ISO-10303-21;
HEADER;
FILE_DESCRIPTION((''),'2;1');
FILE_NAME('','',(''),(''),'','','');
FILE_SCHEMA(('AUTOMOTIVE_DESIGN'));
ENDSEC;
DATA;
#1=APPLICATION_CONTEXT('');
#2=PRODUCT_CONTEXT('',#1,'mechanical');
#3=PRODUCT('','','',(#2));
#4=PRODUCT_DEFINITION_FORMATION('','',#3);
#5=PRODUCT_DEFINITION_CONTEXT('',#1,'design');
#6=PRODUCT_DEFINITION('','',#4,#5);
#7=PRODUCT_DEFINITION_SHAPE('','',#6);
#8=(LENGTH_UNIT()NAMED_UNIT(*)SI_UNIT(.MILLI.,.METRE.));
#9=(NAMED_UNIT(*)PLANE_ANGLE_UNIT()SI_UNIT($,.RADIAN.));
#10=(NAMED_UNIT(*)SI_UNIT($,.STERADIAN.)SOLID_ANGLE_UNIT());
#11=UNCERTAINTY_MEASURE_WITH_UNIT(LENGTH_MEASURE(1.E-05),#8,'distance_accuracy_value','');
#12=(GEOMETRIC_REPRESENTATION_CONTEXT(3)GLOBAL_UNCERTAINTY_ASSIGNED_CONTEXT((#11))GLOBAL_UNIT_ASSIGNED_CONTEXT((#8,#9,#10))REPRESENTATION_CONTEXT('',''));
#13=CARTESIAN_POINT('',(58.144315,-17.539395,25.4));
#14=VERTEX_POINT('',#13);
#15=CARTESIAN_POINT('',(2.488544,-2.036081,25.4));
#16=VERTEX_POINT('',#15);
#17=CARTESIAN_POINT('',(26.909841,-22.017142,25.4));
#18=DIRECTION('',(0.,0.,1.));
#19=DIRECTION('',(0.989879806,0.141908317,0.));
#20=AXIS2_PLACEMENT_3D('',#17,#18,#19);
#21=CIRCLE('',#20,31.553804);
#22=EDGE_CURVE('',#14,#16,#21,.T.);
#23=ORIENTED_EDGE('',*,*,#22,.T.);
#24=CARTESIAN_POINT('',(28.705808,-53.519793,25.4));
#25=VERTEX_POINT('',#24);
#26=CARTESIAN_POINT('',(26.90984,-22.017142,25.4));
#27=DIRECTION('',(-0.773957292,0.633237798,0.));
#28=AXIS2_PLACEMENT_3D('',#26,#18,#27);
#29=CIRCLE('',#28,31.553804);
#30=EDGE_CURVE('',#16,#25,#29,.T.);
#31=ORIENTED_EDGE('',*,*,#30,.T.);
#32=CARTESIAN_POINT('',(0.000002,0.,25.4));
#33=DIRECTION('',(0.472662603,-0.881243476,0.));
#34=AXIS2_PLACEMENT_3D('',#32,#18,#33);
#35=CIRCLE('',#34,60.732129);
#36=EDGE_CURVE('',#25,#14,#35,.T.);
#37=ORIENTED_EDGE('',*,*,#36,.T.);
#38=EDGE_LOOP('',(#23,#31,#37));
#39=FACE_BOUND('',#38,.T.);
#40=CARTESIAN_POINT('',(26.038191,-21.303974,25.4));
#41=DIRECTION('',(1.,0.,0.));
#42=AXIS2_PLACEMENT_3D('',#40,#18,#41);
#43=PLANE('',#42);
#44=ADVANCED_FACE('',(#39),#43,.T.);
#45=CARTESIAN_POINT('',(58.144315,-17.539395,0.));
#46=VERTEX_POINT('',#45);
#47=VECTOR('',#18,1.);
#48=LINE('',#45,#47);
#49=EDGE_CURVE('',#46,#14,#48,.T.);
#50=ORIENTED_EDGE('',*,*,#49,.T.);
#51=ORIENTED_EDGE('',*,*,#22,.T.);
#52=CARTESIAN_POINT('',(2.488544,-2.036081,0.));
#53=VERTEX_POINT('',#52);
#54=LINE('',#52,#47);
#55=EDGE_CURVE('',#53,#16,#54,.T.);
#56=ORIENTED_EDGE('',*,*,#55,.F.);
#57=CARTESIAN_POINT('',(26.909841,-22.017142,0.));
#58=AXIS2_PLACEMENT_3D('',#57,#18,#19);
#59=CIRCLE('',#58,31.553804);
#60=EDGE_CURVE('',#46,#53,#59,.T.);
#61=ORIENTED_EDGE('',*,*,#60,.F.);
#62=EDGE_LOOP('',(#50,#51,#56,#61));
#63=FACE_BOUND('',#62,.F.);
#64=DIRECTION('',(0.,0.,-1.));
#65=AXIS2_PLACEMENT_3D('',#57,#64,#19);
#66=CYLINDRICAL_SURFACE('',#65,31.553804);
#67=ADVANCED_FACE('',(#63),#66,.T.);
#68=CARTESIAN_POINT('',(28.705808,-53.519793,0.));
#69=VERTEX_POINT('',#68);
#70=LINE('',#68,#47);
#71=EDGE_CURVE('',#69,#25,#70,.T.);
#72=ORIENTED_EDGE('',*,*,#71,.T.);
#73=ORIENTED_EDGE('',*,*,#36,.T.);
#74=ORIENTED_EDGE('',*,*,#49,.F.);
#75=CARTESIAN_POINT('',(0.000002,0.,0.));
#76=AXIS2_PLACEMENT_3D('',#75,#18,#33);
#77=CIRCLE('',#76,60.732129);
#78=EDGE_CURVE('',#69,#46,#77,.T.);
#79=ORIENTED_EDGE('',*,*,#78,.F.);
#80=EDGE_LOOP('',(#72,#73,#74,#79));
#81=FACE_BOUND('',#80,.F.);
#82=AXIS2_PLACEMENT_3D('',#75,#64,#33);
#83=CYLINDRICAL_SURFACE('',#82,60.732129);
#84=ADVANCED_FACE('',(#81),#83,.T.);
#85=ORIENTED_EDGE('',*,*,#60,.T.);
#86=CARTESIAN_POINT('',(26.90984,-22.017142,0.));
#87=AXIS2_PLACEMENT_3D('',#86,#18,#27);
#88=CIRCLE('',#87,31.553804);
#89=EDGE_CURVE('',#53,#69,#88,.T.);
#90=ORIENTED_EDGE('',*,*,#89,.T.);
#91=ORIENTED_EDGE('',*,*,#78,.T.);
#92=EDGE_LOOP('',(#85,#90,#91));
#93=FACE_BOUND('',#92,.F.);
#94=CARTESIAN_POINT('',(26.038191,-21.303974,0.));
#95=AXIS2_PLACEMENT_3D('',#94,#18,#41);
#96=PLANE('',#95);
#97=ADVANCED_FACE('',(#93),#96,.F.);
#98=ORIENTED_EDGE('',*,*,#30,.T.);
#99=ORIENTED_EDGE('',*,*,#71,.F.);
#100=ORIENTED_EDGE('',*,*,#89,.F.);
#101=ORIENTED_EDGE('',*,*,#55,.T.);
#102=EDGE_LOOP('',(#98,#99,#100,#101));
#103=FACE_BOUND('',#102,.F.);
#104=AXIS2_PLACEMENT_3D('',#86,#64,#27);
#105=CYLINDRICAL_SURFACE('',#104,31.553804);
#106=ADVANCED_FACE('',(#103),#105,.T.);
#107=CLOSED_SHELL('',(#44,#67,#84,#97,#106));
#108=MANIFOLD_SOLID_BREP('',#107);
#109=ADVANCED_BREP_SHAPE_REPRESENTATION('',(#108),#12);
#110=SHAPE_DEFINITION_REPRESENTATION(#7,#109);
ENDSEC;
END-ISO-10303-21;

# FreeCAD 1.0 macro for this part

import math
import FreeCAD as App
import Part
import Sketcher

V = App.Vector
Q = App.Units.Quantity

doc = App.newDocument("Part")
body = doc.addObject("PartDesign::Body", "Body")

# Sketch on XY plane
sketch1 = body.newObject("Sketcher::SketchObject", "Sketch")
sketch1.AttachmentSupport = (doc.getObject("XY_Plane"), [""])
sketch1.MapMode = "FlatFace"
sketch1.addGeometry([
    Part.ArcOfCircle(Part.Circle(V(27, -22, 0), V(0, 0, 1), 32), math.radians(141), math.radians(273)),
    Part.ArcOfCircle(Part.Circle(V(0, 0, 0), V(0, 0, 1), 61), math.radians(-62), math.radians(-17)),
    Part.ArcOfCircle(Part.Circle(V(27, -22, 0), V(0, 0, 1), 32), math.radians(8), math.radians(141)),
], False)
sketch1.addConstraint([
    Sketcher.Constraint("Coincident", 0, 2, 1, 1),
    Sketcher.Constraint("Coincident", 1, 2, 2, 1),
    Sketcher.Constraint("Tangent", 2, 2, 0, 1),
    Sketcher.Constraint("Coincident", 1, 3, -1, 1),
    Sketcher.Constraint("Equal", 0, 2),
    Sketcher.Constraint("Radius", 1, 60.732129),
    Sketcher.Constraint("Radius", 0, 31.553804),
    Sketcher.Constraint("DistanceY", 0, 2, 1, 2, 35.980398),
    Sketcher.Constraint("DistanceX", -1, 1, 0, 3, 26.90984),
    Sketcher.Constraint("DistanceY", 2, 2, -1, 1, 2.036081),
])
pad1 = body.newObject("PartDesign::Pad", "Pad")
pad1.Profile = sketch1
pad1.Length = Q("1 in")

doc.recompute()
